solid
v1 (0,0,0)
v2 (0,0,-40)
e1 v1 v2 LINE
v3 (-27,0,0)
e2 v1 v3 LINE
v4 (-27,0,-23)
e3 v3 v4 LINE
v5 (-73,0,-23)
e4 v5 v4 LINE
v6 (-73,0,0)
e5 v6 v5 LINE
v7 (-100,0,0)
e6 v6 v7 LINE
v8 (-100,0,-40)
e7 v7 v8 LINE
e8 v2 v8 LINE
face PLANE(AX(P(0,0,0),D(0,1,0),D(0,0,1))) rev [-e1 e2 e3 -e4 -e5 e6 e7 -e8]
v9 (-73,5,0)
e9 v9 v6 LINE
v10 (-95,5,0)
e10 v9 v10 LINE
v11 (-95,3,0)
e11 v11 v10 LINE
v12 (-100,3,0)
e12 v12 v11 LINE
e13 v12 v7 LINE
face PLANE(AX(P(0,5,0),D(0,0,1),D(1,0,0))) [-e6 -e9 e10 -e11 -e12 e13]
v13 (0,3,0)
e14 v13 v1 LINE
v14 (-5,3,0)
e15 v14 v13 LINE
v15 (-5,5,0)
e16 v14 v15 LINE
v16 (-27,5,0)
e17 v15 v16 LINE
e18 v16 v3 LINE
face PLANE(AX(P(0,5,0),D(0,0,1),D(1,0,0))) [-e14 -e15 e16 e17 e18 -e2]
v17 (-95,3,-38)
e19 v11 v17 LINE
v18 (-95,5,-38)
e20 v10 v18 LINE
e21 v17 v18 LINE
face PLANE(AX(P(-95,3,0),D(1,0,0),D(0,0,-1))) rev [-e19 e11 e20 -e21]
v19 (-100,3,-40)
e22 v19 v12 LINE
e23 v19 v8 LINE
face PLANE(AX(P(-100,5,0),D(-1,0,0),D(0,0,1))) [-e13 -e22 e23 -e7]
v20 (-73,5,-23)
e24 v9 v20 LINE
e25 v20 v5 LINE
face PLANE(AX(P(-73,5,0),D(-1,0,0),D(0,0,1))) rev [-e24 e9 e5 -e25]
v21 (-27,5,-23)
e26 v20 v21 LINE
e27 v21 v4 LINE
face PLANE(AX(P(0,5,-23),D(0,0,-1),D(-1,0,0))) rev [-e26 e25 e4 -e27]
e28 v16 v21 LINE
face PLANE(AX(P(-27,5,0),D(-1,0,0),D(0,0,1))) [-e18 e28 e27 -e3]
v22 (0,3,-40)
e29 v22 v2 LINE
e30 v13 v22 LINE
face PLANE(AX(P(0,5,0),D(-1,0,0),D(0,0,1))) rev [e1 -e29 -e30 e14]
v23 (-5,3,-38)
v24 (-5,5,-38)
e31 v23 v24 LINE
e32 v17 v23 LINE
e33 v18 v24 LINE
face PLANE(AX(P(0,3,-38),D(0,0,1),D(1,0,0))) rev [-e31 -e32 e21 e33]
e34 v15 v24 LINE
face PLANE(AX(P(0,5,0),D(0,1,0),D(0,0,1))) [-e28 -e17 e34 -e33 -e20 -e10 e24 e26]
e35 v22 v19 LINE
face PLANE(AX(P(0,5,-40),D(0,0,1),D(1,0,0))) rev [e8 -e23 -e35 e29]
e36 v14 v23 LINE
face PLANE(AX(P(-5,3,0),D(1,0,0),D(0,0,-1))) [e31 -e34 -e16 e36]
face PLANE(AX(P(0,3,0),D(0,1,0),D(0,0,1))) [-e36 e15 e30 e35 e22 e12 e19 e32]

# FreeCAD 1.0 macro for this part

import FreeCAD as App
import Part
import Sketcher
from FreeCAD import Vector
Q = App.Units.Quantity

doc = App.newDocument("Part")
body = doc.addObject("PartDesign::Body", "Body")

# Sketch on XZ plane
sketch1 = body.newObject("Sketcher::SketchObject", "Sketch")
sketch1.AttachmentSupport = (doc.getObject("XZ_Plane"), [""])
sketch1.MapMode = "FlatFace"
sketch1.addGeometry([
    Part.LineSegment(Vector(-27, 0, 0), Vector(0, 0, 0)),  # 0
    Part.LineSegment(Vector(0, 0, 0), Vector(0, -40, 0)),  # 1
    Part.LineSegment(Vector(0, -40, 0), Vector(-100, -40, 0)),  # 2
    Part.LineSegment(Vector(-100, -40, 0), Vector(-100, 0, 0)),  # 3
    Part.LineSegment(Vector(-100, 0, 0), Vector(-73, 0, 0)),  # 4
    Part.LineSegment(Vector(-73, 0, 0), Vector(-73, -23, 0)),  # 5
    Part.LineSegment(Vector(-73, -23, 0), Vector(-27, -23, 0)),  # 6
    Part.LineSegment(Vector(-27, -23, 0), Vector(-27, 0, 0)),  # 7
], False)
sketch1.addConstraint([
    Sketcher.Constraint("Coincident", 0, 2, 1, 1),
    Sketcher.Constraint("Coincident", 1, 2, 2, 1),
    Sketcher.Constraint("Coincident", 2, 2, 3, 1),
    Sketcher.Constraint("Coincident", 3, 2, 4, 1),
    Sketcher.Constraint("Coincident", 4, 2, 5, 1),
    Sketcher.Constraint("Coincident", 5, 2, 6, 1),
    Sketcher.Constraint("Coincident", 6, 2, 7, 1),
    Sketcher.Constraint("Coincident", 7, 2, 0, 1),
    Sketcher.Constraint("Horizontal", 0),
    Sketcher.Constraint("Vertical", 1),
    Sketcher.Constraint("Horizontal", 2),
    Sketcher.Constraint("Vertical", 3),
    Sketcher.Constraint("Horizontal", 4),
    Sketcher.Constraint("Vertical", 5),
    Sketcher.Constraint("Horizontal", 6),
    Sketcher.Constraint("Vertical", 7),
    Sketcher.Constraint("Coincident", 0, 2, -1, 1),
    Sketcher.Constraint("PointOnObject", 3, 2, -1),
    Sketcher.Constraint("Equal", 0, 4),
    Sketcher.Constraint("DistanceX", 0, 1, 0, 2, Q("27 mm")),
    Sketcher.Constraint("DistanceX", 2, 2, 2, 1, Q("100 mm")),
    Sketcher.Constraint("DistanceY", 1, 2, 1, 1, Q("40 mm")),
    Sketcher.Constraint("DistanceY", 5, 2, 5, 1, Q("23 mm")),
])
pad1 = body.newObject("PartDesign::Pad", "Pad")
pad1.Profile = sketch1
pad1.Length = 5
pad1.Reversed = True

# Sketch on XZ plane
sketch2 = body.newObject("Sketcher::SketchObject", "Sketch001")
sketch2.AttachmentSupport = (doc.getObject("XZ_Plane"), [""])
sketch2.MapMode = "FlatFace"
sketch2.AttachmentOffset = App.Placement(Vector(0, 0, -5), App.Rotation())
sketch2.addGeometry([
    Part.LineSegment(Vector(-100, -40, 0), Vector(-100, 0, 0)),  # 0
    Part.LineSegment(Vector(-100, 0, 0), Vector(-95, 0, 0)),  # 1
    Part.LineSegment(Vector(-95, 0, 0), Vector(-95, -38, 0)),  # 2
    Part.LineSegment(Vector(-95, -38, 0), Vector(-5, -38, 0)),  # 3
    Part.LineSegment(Vector(-5, -38, 0), Vector(-5, 0, 0)),  # 4
    Part.LineSegment(Vector(-5, 0, 0), Vector(0, 0, 0)),  # 5
    Part.LineSegment(Vector(0, 0, 0), Vector(0, -40, 0)),  # 6
    Part.LineSegment(Vector(0, -40, 0), Vector(-100, -40, 0)),  # 7
], False)
sketch2.addConstraint([
    Sketcher.Constraint("Coincident", 0, 2, 1, 1),
    Sketcher.Constraint("Coincident", 1, 2, 2, 1),
    Sketcher.Constraint("Coincident", 2, 2, 3, 1),
    Sketcher.Constraint("Coincident", 3, 2, 4, 1),
    Sketcher.Constraint("Coincident", 4, 2, 5, 1),
    Sketcher.Constraint("Coincident", 5, 2, 6, 1),
    Sketcher.Constraint("Coincident", 6, 2, 7, 1),
    Sketcher.Constraint("Coincident", 7, 2, 0, 1),
    Sketcher.Constraint("Vertical", 0),
    Sketcher.Constraint("Horizontal", 1),
    Sketcher.Constraint("Vertical", 2),
    Sketcher.Constraint("Horizontal", 3),
    Sketcher.Constraint("Vertical", 4),
    Sketcher.Constraint("Horizontal", 5),
    Sketcher.Constraint("Vertical", 6),
    Sketcher.Constraint("Horizontal", 7),
    Sketcher.Constraint("Coincident", 5, 2, -1, 1),
    Sketcher.Constraint("PointOnObject", 0, 2, -1),
    Sketcher.Constraint("Equal", 1, 5),
    Sketcher.Constraint("DistanceX", 1, 1, 1, 2, Q("5 mm")),
    Sketcher.Constraint("DistanceX", 3, 1, 3, 2, Q("90 mm")),
    Sketcher.Constraint("DistanceY", 0, 1, 0, 2, Q("40 mm")),
    Sketcher.Constraint("DistanceY", 2, 2, 2, 1, Q("38 mm")),
])
pocket1 = body.newObject("PartDesign::Pocket", "Pocket")
pocket1.Profile = sketch2
pocket1.Length = 2
pocket1.Reversed = True

doc.recompute()
